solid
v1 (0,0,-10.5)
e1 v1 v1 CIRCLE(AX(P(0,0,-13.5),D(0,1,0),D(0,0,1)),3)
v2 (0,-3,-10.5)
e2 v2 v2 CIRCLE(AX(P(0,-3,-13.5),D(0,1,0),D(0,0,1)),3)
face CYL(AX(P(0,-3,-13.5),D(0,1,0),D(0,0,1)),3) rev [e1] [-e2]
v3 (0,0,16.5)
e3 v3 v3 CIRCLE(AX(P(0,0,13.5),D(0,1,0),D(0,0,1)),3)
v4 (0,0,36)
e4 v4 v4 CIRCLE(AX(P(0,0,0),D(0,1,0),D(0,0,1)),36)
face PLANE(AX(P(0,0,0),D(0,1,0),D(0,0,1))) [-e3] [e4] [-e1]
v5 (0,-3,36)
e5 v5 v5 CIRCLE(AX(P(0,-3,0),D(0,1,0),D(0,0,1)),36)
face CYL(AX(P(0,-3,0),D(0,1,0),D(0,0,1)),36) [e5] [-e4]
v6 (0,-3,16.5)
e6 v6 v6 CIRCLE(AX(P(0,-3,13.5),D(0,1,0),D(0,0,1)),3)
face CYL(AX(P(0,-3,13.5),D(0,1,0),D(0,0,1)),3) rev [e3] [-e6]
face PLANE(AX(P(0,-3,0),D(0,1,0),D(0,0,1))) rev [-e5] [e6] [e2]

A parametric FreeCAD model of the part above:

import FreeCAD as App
import Part
import Sketcher

V = App.Vector
Q = App.Units.Quantity

doc = App.newDocument("Part")
body = doc.addObject("PartDesign::Body", "Body")

# Sketch on XZ plane
sketch1 = body.newObject("Sketcher::SketchObject", "Sketch")
sketch1.AttachmentSupport = (doc.getObject("XZ_Plane"), [""])
sketch1.MapMode = "FlatFace"
sketch1.addGeometry(Part.Circle(V(0, 0, 0), V(0, 0, 1), 36), False)
sketch1.addGeometry(Part.Circle(V(0, -13.5, 0), V(0, 0, 1), 3), False)
sketch1.addGeometry(Part.Circle(V(0, 13.5, 0), V(0, 0, 1), 3), False)
sketch1.addConstraint(Sketcher.Constraint("Coincident", 0, 3, -1, 1))
sketch1.addConstraint(Sketcher.Constraint("Equal", 1, 2))
sketch1.addConstraint(Sketcher.Constraint("Symmetric", 1, 3, 2, 3, -1, 1))
sketch1.addConstraint(Sketcher.Constraint("PointOnObject", 1, 3, -2))
sketch1.addConstraint(Sketcher.Constraint("Diameter", 0, Q("72 mm")))
sketch1.addConstraint(Sketcher.Constraint("Diameter", 1, Q("6 mm")))
sketch1.addConstraint(Sketcher.Constraint("DistanceY", 1, 3, 2, 3, Q("27 mm")))
pad1 = body.newObject("PartDesign::Pad", "Pad")
pad1.Profile = sketch1
pad1.Length = 3

doc.recompute()
